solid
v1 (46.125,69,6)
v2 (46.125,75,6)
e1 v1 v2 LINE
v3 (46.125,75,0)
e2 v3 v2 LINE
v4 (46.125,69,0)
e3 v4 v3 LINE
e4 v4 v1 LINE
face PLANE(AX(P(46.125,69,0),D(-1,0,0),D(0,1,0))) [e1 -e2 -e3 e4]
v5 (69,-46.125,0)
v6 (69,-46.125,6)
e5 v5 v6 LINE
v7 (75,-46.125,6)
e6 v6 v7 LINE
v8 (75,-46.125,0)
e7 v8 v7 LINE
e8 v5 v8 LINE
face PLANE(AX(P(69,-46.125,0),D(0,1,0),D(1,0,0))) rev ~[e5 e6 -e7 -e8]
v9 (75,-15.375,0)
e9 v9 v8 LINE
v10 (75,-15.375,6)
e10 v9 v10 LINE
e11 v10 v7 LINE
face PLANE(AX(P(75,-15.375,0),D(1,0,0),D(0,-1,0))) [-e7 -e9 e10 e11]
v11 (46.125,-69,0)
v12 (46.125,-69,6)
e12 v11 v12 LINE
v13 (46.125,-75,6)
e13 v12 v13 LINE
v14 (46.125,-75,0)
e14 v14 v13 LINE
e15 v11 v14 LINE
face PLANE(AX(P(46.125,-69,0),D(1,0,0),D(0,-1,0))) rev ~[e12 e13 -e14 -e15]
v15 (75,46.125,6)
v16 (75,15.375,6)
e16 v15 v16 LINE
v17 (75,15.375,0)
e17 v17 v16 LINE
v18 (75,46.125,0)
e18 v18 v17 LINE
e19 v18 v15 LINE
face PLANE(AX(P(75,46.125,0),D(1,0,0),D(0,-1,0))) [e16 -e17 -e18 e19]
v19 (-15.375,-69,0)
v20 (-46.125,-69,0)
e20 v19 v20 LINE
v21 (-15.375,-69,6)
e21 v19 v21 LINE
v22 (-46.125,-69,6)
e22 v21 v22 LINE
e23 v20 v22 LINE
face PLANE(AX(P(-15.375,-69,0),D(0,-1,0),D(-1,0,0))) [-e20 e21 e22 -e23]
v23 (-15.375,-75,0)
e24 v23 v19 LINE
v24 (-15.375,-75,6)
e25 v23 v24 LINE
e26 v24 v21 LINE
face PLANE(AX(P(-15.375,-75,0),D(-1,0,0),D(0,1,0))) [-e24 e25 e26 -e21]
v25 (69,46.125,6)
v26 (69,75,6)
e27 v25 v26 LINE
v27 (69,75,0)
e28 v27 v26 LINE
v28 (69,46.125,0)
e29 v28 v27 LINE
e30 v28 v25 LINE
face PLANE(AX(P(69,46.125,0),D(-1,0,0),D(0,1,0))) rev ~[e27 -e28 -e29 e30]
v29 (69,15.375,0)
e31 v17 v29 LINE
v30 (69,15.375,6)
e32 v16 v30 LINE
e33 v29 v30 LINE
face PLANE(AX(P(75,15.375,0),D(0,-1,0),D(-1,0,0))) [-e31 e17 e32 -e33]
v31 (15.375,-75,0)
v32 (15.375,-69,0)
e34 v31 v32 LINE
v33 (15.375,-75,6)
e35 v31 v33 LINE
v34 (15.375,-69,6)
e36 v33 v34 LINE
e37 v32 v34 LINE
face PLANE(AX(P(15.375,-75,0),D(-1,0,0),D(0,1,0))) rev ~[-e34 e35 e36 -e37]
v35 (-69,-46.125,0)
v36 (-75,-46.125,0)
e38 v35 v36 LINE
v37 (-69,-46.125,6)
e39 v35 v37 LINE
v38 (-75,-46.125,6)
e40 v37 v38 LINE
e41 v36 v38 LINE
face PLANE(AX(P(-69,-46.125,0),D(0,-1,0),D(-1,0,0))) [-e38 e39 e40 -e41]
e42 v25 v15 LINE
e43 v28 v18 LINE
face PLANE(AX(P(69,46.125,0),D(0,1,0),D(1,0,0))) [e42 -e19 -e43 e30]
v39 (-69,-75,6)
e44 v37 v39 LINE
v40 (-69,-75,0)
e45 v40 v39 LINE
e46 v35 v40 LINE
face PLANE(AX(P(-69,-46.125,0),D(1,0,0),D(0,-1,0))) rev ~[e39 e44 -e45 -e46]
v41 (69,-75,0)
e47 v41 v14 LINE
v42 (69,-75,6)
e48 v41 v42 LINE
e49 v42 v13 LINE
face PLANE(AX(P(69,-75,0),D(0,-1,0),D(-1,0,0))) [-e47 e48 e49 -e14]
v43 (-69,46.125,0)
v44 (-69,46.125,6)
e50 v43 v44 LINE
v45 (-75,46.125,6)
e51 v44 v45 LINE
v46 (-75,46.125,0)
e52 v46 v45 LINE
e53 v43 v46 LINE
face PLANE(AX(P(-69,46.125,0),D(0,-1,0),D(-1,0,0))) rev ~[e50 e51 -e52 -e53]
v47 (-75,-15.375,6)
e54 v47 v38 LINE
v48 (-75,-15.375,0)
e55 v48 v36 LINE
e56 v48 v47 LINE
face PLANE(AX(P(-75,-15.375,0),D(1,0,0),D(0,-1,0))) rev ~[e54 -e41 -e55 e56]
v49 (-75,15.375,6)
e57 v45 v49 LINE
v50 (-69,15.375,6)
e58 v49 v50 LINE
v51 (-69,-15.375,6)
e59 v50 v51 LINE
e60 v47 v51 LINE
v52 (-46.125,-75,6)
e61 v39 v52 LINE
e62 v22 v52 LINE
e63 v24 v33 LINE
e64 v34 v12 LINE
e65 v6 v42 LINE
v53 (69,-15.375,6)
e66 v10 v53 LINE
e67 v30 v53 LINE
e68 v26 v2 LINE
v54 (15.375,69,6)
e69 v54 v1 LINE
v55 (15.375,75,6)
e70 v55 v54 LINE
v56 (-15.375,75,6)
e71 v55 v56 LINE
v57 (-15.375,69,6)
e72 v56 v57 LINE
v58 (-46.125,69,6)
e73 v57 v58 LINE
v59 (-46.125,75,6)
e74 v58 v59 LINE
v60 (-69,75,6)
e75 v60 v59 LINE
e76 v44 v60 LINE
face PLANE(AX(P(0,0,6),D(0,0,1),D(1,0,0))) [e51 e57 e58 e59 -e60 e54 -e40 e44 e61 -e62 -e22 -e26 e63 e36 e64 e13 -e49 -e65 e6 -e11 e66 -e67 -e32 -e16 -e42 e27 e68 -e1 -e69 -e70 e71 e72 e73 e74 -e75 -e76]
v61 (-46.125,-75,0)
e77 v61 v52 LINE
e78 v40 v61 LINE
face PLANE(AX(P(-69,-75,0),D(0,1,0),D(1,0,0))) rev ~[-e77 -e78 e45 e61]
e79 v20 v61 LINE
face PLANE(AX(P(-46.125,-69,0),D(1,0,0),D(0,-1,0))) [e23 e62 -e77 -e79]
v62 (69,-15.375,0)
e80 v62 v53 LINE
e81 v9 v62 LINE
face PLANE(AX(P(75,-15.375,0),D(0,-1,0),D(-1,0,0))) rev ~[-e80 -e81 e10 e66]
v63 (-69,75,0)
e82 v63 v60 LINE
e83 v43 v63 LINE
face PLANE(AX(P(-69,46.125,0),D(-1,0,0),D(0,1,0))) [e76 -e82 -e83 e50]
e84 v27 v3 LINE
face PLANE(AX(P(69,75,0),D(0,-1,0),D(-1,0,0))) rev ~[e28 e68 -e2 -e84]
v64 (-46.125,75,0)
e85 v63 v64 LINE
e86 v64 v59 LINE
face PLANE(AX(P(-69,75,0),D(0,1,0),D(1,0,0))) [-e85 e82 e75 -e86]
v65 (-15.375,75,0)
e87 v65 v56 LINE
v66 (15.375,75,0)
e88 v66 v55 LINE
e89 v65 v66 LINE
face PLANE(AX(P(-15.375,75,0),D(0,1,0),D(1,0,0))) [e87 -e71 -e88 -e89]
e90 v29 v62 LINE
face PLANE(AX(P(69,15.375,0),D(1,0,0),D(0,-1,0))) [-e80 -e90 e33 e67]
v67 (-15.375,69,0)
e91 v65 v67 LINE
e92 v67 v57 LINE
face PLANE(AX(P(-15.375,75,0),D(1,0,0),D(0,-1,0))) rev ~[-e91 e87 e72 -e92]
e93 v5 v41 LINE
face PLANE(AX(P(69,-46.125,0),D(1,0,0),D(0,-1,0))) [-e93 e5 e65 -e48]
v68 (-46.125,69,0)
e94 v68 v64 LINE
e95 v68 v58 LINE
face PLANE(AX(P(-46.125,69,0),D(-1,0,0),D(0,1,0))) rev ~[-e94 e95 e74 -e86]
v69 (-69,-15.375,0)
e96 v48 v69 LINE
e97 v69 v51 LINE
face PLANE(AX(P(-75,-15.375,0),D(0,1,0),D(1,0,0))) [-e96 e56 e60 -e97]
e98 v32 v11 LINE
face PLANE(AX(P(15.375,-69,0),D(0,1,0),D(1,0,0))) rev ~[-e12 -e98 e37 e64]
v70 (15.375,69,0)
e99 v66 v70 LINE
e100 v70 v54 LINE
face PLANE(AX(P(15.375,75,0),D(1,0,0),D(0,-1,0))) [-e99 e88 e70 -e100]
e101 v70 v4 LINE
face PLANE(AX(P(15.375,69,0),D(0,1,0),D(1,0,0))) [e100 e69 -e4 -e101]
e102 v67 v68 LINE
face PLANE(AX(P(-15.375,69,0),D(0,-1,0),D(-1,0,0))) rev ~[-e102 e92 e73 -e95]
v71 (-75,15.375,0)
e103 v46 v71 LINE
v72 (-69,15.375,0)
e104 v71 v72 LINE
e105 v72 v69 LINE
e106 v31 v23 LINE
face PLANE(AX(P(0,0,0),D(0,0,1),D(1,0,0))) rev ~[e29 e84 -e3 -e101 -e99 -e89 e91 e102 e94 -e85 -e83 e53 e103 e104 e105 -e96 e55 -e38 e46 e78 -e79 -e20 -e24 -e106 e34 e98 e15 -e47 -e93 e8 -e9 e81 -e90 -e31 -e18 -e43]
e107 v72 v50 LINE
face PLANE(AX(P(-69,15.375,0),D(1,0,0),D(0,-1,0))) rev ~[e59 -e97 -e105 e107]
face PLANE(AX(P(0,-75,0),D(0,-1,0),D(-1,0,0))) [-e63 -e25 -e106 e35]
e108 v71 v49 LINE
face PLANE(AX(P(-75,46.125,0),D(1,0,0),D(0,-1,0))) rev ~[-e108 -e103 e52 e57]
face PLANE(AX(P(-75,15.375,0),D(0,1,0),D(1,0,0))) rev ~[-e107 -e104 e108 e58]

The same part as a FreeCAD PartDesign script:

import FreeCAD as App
import Part
import Sketcher

doc = App.newDocument("Part")
params = doc.addObject("Spreadsheet::Sheet", "Params")
for row, (alias, value) in enumerate([
    ("sketch1_width", "6 mm"),
    ("sketch1_width2", "30.75 mm"),
    ("pad1_length", "6 mm"),
], start=1):
    params.set(f"A{row}", alias)
    params.set(f"B{row}", "=" + value)
    params.setAlias(f"B{row}", alias)

body = doc.addObject("PartDesign::Body", "Body")

# Sketch on XY plane
sketch1 = body.newObject("Sketcher::SketchObject", "Sketch")
sketch1.AttachmentSupport = (doc.getObject("XY_Plane"), [""])
sketch1.MapMode = "FlatFace"
sketch1.addGeometry(Part.LineSegment(App.Vector(-69, -46, 0), App.Vector(-69, -75, 0)), False)
sketch1.addGeometry(Part.LineSegment(App.Vector(-69, -75, 0), App.Vector(-46, -75, 0)), False)
sketch1.addGeometry(Part.LineSegment(App.Vector(-46, -75, 0), App.Vector(-46, -69, 0)), False)
sketch1.addGeometry(Part.LineSegment(App.Vector(-46, -69, 0), App.Vector(-15, -69, 0)), False)
sketch1.addGeometry(Part.LineSegment(App.Vector(-15, -69, 0), App.Vector(-15, -75, 0)), False)
sketch1.addGeometry(Part.LineSegment(App.Vector(-15, -75, 0), App.Vector(15, -75, 0)), False)
sketch1.addGeometry(Part.LineSegment(App.Vector(15, -75, 0), App.Vector(15, -69, 0)), False)
sketch1.addGeometry(Part.LineSegment(App.Vector(15, -69, 0), App.Vector(46, -69, 0)), False)
sketch1.addGeometry(Part.LineSegment(App.Vector(46, -69, 0), App.Vector(46, -75, 0)), False)
sketch1.addGeometry(Part.LineSegment(App.Vector(46, -75, 0), App.Vector(69, -75, 0)), False)
sketch1.addGeometry(Part.LineSegment(App.Vector(69, -75, 0), App.Vector(69, -46, 0)), False)
sketch1.addGeometry(Part.LineSegment(App.Vector(69, -46, 0), App.Vector(75, -46, 0)), False)
sketch1.addGeometry(Part.LineSegment(App.Vector(75, -46, 0), App.Vector(75, -15, 0)), False)
sketch1.addGeometry(Part.LineSegment(App.Vector(75, -15, 0), App.Vector(69, -15, 0)), False)
sketch1.addGeometry(Part.LineSegment(App.Vector(69, -15, 0), App.Vector(69, 15, 0)), False)
sketch1.addGeometry(Part.LineSegment(App.Vector(69, 15, 0), App.Vector(75, 15, 0)), False)
sketch1.addGeometry(Part.LineSegment(App.Vector(75, 15, 0), App.Vector(75, 46, 0)), False)
sketch1.addGeometry(Part.LineSegment(App.Vector(75, 46, 0), App.Vector(69, 46, 0)), False)
sketch1.addGeometry(Part.LineSegment(App.Vector(69, 46, 0), App.Vector(69, 75, 0)), False)
sketch1.addGeometry(Part.LineSegment(App.Vector(69, 75, 0), App.Vector(46, 75, 0)), False)
sketch1.addGeometry(Part.LineSegment(App.Vector(46, 75, 0), App.Vector(46, 69, 0)), False)
sketch1.addGeometry(Part.LineSegment(App.Vector(46, 69, 0), App.Vector(15, 69, 0)), False)
sketch1.addGeometry(Part.LineSegment(App.Vector(15, 69, 0), App.Vector(15, 75, 0)), False)
sketch1.addGeometry(Part.LineSegment(App.Vector(15, 75, 0), App.Vector(-15, 75, 0)), False)
sketch1.addGeometry(Part.LineSegment(App.Vector(-15, 75, 0), App.Vector(-15, 69, 0)), False)
sketch1.addGeometry(Part.LineSegment(App.Vector(-15, 69, 0), App.Vector(-46, 69, 0)), False)
sketch1.addGeometry(Part.LineSegment(App.Vector(-46, 69, 0), App.Vector(-46, 75, 0)), False)
sketch1.addGeometry(Part.LineSegment(App.Vector(-46, 75, 0), App.Vector(-69, 75, 0)), False)
sketch1.addGeometry(Part.LineSegment(App.Vector(-69, 75, 0), App.Vector(-69, 46, 0)), False)
sketch1.addGeometry(Part.LineSegment(App.Vector(-69, 46, 0), App.Vector(-75, 46, 0)), False)
sketch1.addGeometry(Part.LineSegment(App.Vector(-75, 46, 0), App.Vector(-75, 15, 0)), False)
sketch1.addGeometry(Part.LineSegment(App.Vector(-75, 15, 0), App.Vector(-69, 15, 0)), False)
sketch1.addGeometry(Part.LineSegment(App.Vector(-69, 15, 0), App.Vector(-69, -15, 0)), False)
sketch1.addGeometry(Part.LineSegment(App.Vector(-69, -15, 0), App.Vector(-75, -15, 0)), False)
sketch1.addGeometry(Part.LineSegment(App.Vector(-75, -15, 0), App.Vector(-75, -46, 0)), False)
sketch1.addGeometry(Part.LineSegment(App.Vector(-75, -46, 0), App.Vector(-69, -46, 0)), False)
sketch1.addConstraint(Sketcher.Constraint("Coincident", 0, 2, 1, 1))
sketch1.addConstraint(Sketcher.Constraint("Coincident", 1, 2, 2, 1))
sketch1.addConstraint(Sketcher.Constraint("Coincident", 2, 2, 3, 1))
sketch1.addConstraint(Sketcher.Constraint("Coincident", 3, 2, 4, 1))
sketch1.addConstraint(Sketcher.Constraint("Coincident", 4, 2, 5, 1))
sketch1.addConstraint(Sketcher.Constraint("Coincident", 5, 2, 6, 1))
sketch1.addConstraint(Sketcher.Constraint("Coincident", 6, 2, 7, 1))
sketch1.addConstraint(Sketcher.Constraint("Coincident", 7, 2, 8, 1))
sketch1.addConstraint(Sketcher.Constraint("Coincident", 8, 2, 9, 1))
sketch1.addConstraint(Sketcher.Constraint("Coincident", 9, 2, 10, 1))
sketch1.addConstraint(Sketcher.Constraint("Coincident", 10, 2, 11, 1))
sketch1.addConstraint(Sketcher.Constraint("Coincident", 11, 2, 12, 1))
sketch1.addConstraint(Sketcher.Constraint("Coincident", 12, 2, 13, 1))
sketch1.addConstraint(Sketcher.Constraint("Coincident", 13, 2, 14, 1))
sketch1.addConstraint(Sketcher.Constraint("Coincident", 14, 2, 15, 1))
sketch1.addConstraint(Sketcher.Constraint("Coincident", 15, 2, 16, 1))
sketch1.addConstraint(Sketcher.Constraint("Coincident", 16, 2, 17, 1))
sketch1.addConstraint(Sketcher.Constraint("Coincident", 17, 2, 18, 1))
sketch1.addConstraint(Sketcher.Constraint("Coincident", 18, 2, 19, 1))
sketch1.addConstraint(Sketcher.Constraint("Coincident", 19, 2, 20, 1))
sketch1.addConstraint(Sketcher.Constraint("Coincident", 20, 2, 21, 1))
sketch1.addConstraint(Sketcher.Constraint("Coincident", 21, 2, 22, 1))
sketch1.addConstraint(Sketcher.Constraint("Coincident", 22, 2, 23, 1))
sketch1.addConstraint(Sketcher.Constraint("Coincident", 23, 2, 24, 1))
sketch1.addConstraint(Sketcher.Constraint("Coincident", 24, 2, 25, 1))
sketch1.addConstraint(Sketcher.Constraint("Coincident", 25, 2, 26, 1))
sketch1.addConstraint(Sketcher.Constraint("Coincident", 26, 2, 27, 1))
sketch1.addConstraint(Sketcher.Constraint("Coincident", 27, 2, 28, 1))
sketch1.addConstraint(Sketcher.Constraint("Coincident", 28, 2, 29, 1))
sketch1.addConstraint(Sketcher.Constraint("Coincident", 29, 2, 30, 1))
sketch1.addConstraint(Sketcher.Constraint("Coincident", 30, 2, 31, 1))
sketch1.addConstraint(Sketcher.Constraint("Coincident", 31, 2, 32, 1))
sketch1.addConstraint(Sketcher.Constraint("Coincident", 32, 2, 33, 1))
sketch1.addConstraint(Sketcher.Constraint("Coincident", 33, 2, 34, 1))
sketch1.addConstraint(Sketcher.Constraint("Coincident", 34, 2, 35, 1))
sketch1.addConstraint(Sketcher.Constraint("Coincident", 35, 2, 0, 1))
sketch1.addConstraint(Sketcher.Constraint("Vertical", 0))
sketch1.addConstraint(Sketcher.Constraint("Horizontal", 1))
sketch1.addConstraint(Sketcher.Constraint("Vertical", 2))
sketch1.addConstraint(Sketcher.Constraint("Horizontal", 3))
sketch1.addConstraint(Sketcher.Constraint("Vertical", 4))
sketch1.addConstraint(Sketcher.Constraint("Horizontal", 5))
sketch1.addConstraint(Sketcher.Constraint("Vertical", 6))
sketch1.addConstraint(Sketcher.Constraint("Horizontal", 7))
sketch1.addConstraint(Sketcher.Constraint("Vertical", 8))
sketch1.addConstraint(Sketcher.Constraint("Horizontal", 9))
sketch1.addConstraint(Sketcher.Constraint("Vertical", 10))
sketch1.addConstraint(Sketcher.Constraint("Horizontal", 11))
sketch1.addConstraint(Sketcher.Constraint("Vertical", 12))
sketch1.addConstraint(Sketcher.Constraint("Horizontal", 13))
sketch1.addConstraint(Sketcher.Constraint("Vertical", 14))
sketch1.addConstraint(Sketcher.Constraint("Horizontal", 15))
sketch1.addConstraint(Sketcher.Constraint("Vertical", 16))
sketch1.addConstraint(Sketcher.Constraint("Horizontal", 17))
sketch1.addConstraint(Sketcher.Constraint("Vertical", 18))
sketch1.addConstraint(Sketcher.Constraint("Horizontal", 19))
sketch1.addConstraint(Sketcher.Constraint("Vertical", 20))
sketch1.addConstraint(Sketcher.Constraint("Horizontal", 21))
sketch1.addConstraint(Sketcher.Constraint("Vertical", 22))
sketch1.addConstraint(Sketcher.Constraint("Horizontal", 23))
sketch1.addConstraint(Sketcher.Constraint("Vertical", 24))
sketch1.addConstraint(Sketcher.Constraint("Horizontal", 25))
sketch1.addConstraint(Sketcher.Constraint("Vertical", 26))
sketch1.addConstraint(Sketcher.Constraint("Horizontal", 27))
sketch1.addConstraint(Sketcher.Constraint("Vertical", 28))
sketch1.addConstraint(Sketcher.Constraint("Horizontal", 29))
sketch1.addConstraint(Sketcher.Constraint("Vertical", 30))
sketch1.addConstraint(Sketcher.Constraint("Horizontal", 31))
sketch1.addConstraint(Sketcher.Constraint("Vertical", 32))
sketch1.addConstraint(Sketcher.Constraint("Horizontal", 33))
sketch1.addConstraint(Sketcher.Constraint("Vertical", 34))
sketch1.addConstraint(Sketcher.Constraint("Horizontal", 35))
sketch1.addConstraint(Sketcher.Constraint("Symmetric", 0, 2, 18, 2, -1, 1))
sketch1.addConstraint(Sketcher.Constraint("Symmetric", 2, 2, 20, 2, -1, 1))
sketch1.addConstraint(Sketcher.Constraint("Symmetric", 4, 2, 22, 2, -1, 1))
sketch1.addConstraint(Sketcher.Constraint("Symmetric", 6, 2, 24, 2, -1, 1))
sketch1.addConstraint(Sketcher.Constraint("Symmetric", 8, 2, 26, 2, -1, 1))
sketch1.addConstraint(Sketcher.Constraint("Symmetric", 10, 2, 28, 2, -1, 1))
sketch1.addConstraint(Sketcher.Constraint("Symmetric", 12, 2, 30, 2, -1, 1))
sketch1.addConstraint(Sketcher.Constraint("Symmetric", 14, 2, 32, 2, -1, 1))
sketch1.addConstraint(Sketcher.Constraint("Symmetric", 16, 2, 34, 2, -1, 1))
sketch1.addConstraint(Sketcher.Constraint("Symmetric", 3, 2, 6, 2, -2))
sketch1.addConstraint(Sketcher.Constraint("Symmetric", 1, 2, 8, 2, -2))
sketch1.addConstraint(Sketcher.Constraint("Symmetric", 17, 2, 28, 2, -2))
sketch1.addConstraint(Sketcher.Constraint("Symmetric", 15, 2, 30, 2, -2))
sketch1.addConstraint(Sketcher.Constraint("Horizontal", 1, 2, 4, 2))
sketch1.addConstraint(Sketcher.Constraint("Vertical", 10, 2, 13, 2))
sketch1.addConstraint(Sketcher.Constraint("Equal", 3, 5))
sketch1.addConstraint(Sketcher.Constraint("Equal", 35, 2))
sketch1.addConstraint(Sketcher.Constraint("Equal", 25, 12))
sketch1.addConstraint(Sketcher.Constraint("Equal", 12, 14))
sketch1.addConstraint(Sketcher.Constraint("DistanceX", 11, 1, 11, 2, 6.0))
sketch1.addConstraint(Sketcher.Constraint("DistanceX", 0, 2, -1, 1, 69.0))
sketch1.addConstraint(Sketcher.Constraint("DistanceY", 0, 2, -1, 1, 75.0))
sketch1.addConstraint(Sketcher.Constraint("DistanceX", 3, 1, 3, 2, 30.75))
sketch1.setExpression("Constraints[91]", "Params.sketch1_width")
sketch1.setExpression("Constraints[94]", "Params.sketch1_width2")
pad1 = body.newObject("PartDesign::Pad", "Pad")
pad1.Profile = sketch1
pad1.setExpression("Length", "Params.pad1_length")

doc.recompute()
